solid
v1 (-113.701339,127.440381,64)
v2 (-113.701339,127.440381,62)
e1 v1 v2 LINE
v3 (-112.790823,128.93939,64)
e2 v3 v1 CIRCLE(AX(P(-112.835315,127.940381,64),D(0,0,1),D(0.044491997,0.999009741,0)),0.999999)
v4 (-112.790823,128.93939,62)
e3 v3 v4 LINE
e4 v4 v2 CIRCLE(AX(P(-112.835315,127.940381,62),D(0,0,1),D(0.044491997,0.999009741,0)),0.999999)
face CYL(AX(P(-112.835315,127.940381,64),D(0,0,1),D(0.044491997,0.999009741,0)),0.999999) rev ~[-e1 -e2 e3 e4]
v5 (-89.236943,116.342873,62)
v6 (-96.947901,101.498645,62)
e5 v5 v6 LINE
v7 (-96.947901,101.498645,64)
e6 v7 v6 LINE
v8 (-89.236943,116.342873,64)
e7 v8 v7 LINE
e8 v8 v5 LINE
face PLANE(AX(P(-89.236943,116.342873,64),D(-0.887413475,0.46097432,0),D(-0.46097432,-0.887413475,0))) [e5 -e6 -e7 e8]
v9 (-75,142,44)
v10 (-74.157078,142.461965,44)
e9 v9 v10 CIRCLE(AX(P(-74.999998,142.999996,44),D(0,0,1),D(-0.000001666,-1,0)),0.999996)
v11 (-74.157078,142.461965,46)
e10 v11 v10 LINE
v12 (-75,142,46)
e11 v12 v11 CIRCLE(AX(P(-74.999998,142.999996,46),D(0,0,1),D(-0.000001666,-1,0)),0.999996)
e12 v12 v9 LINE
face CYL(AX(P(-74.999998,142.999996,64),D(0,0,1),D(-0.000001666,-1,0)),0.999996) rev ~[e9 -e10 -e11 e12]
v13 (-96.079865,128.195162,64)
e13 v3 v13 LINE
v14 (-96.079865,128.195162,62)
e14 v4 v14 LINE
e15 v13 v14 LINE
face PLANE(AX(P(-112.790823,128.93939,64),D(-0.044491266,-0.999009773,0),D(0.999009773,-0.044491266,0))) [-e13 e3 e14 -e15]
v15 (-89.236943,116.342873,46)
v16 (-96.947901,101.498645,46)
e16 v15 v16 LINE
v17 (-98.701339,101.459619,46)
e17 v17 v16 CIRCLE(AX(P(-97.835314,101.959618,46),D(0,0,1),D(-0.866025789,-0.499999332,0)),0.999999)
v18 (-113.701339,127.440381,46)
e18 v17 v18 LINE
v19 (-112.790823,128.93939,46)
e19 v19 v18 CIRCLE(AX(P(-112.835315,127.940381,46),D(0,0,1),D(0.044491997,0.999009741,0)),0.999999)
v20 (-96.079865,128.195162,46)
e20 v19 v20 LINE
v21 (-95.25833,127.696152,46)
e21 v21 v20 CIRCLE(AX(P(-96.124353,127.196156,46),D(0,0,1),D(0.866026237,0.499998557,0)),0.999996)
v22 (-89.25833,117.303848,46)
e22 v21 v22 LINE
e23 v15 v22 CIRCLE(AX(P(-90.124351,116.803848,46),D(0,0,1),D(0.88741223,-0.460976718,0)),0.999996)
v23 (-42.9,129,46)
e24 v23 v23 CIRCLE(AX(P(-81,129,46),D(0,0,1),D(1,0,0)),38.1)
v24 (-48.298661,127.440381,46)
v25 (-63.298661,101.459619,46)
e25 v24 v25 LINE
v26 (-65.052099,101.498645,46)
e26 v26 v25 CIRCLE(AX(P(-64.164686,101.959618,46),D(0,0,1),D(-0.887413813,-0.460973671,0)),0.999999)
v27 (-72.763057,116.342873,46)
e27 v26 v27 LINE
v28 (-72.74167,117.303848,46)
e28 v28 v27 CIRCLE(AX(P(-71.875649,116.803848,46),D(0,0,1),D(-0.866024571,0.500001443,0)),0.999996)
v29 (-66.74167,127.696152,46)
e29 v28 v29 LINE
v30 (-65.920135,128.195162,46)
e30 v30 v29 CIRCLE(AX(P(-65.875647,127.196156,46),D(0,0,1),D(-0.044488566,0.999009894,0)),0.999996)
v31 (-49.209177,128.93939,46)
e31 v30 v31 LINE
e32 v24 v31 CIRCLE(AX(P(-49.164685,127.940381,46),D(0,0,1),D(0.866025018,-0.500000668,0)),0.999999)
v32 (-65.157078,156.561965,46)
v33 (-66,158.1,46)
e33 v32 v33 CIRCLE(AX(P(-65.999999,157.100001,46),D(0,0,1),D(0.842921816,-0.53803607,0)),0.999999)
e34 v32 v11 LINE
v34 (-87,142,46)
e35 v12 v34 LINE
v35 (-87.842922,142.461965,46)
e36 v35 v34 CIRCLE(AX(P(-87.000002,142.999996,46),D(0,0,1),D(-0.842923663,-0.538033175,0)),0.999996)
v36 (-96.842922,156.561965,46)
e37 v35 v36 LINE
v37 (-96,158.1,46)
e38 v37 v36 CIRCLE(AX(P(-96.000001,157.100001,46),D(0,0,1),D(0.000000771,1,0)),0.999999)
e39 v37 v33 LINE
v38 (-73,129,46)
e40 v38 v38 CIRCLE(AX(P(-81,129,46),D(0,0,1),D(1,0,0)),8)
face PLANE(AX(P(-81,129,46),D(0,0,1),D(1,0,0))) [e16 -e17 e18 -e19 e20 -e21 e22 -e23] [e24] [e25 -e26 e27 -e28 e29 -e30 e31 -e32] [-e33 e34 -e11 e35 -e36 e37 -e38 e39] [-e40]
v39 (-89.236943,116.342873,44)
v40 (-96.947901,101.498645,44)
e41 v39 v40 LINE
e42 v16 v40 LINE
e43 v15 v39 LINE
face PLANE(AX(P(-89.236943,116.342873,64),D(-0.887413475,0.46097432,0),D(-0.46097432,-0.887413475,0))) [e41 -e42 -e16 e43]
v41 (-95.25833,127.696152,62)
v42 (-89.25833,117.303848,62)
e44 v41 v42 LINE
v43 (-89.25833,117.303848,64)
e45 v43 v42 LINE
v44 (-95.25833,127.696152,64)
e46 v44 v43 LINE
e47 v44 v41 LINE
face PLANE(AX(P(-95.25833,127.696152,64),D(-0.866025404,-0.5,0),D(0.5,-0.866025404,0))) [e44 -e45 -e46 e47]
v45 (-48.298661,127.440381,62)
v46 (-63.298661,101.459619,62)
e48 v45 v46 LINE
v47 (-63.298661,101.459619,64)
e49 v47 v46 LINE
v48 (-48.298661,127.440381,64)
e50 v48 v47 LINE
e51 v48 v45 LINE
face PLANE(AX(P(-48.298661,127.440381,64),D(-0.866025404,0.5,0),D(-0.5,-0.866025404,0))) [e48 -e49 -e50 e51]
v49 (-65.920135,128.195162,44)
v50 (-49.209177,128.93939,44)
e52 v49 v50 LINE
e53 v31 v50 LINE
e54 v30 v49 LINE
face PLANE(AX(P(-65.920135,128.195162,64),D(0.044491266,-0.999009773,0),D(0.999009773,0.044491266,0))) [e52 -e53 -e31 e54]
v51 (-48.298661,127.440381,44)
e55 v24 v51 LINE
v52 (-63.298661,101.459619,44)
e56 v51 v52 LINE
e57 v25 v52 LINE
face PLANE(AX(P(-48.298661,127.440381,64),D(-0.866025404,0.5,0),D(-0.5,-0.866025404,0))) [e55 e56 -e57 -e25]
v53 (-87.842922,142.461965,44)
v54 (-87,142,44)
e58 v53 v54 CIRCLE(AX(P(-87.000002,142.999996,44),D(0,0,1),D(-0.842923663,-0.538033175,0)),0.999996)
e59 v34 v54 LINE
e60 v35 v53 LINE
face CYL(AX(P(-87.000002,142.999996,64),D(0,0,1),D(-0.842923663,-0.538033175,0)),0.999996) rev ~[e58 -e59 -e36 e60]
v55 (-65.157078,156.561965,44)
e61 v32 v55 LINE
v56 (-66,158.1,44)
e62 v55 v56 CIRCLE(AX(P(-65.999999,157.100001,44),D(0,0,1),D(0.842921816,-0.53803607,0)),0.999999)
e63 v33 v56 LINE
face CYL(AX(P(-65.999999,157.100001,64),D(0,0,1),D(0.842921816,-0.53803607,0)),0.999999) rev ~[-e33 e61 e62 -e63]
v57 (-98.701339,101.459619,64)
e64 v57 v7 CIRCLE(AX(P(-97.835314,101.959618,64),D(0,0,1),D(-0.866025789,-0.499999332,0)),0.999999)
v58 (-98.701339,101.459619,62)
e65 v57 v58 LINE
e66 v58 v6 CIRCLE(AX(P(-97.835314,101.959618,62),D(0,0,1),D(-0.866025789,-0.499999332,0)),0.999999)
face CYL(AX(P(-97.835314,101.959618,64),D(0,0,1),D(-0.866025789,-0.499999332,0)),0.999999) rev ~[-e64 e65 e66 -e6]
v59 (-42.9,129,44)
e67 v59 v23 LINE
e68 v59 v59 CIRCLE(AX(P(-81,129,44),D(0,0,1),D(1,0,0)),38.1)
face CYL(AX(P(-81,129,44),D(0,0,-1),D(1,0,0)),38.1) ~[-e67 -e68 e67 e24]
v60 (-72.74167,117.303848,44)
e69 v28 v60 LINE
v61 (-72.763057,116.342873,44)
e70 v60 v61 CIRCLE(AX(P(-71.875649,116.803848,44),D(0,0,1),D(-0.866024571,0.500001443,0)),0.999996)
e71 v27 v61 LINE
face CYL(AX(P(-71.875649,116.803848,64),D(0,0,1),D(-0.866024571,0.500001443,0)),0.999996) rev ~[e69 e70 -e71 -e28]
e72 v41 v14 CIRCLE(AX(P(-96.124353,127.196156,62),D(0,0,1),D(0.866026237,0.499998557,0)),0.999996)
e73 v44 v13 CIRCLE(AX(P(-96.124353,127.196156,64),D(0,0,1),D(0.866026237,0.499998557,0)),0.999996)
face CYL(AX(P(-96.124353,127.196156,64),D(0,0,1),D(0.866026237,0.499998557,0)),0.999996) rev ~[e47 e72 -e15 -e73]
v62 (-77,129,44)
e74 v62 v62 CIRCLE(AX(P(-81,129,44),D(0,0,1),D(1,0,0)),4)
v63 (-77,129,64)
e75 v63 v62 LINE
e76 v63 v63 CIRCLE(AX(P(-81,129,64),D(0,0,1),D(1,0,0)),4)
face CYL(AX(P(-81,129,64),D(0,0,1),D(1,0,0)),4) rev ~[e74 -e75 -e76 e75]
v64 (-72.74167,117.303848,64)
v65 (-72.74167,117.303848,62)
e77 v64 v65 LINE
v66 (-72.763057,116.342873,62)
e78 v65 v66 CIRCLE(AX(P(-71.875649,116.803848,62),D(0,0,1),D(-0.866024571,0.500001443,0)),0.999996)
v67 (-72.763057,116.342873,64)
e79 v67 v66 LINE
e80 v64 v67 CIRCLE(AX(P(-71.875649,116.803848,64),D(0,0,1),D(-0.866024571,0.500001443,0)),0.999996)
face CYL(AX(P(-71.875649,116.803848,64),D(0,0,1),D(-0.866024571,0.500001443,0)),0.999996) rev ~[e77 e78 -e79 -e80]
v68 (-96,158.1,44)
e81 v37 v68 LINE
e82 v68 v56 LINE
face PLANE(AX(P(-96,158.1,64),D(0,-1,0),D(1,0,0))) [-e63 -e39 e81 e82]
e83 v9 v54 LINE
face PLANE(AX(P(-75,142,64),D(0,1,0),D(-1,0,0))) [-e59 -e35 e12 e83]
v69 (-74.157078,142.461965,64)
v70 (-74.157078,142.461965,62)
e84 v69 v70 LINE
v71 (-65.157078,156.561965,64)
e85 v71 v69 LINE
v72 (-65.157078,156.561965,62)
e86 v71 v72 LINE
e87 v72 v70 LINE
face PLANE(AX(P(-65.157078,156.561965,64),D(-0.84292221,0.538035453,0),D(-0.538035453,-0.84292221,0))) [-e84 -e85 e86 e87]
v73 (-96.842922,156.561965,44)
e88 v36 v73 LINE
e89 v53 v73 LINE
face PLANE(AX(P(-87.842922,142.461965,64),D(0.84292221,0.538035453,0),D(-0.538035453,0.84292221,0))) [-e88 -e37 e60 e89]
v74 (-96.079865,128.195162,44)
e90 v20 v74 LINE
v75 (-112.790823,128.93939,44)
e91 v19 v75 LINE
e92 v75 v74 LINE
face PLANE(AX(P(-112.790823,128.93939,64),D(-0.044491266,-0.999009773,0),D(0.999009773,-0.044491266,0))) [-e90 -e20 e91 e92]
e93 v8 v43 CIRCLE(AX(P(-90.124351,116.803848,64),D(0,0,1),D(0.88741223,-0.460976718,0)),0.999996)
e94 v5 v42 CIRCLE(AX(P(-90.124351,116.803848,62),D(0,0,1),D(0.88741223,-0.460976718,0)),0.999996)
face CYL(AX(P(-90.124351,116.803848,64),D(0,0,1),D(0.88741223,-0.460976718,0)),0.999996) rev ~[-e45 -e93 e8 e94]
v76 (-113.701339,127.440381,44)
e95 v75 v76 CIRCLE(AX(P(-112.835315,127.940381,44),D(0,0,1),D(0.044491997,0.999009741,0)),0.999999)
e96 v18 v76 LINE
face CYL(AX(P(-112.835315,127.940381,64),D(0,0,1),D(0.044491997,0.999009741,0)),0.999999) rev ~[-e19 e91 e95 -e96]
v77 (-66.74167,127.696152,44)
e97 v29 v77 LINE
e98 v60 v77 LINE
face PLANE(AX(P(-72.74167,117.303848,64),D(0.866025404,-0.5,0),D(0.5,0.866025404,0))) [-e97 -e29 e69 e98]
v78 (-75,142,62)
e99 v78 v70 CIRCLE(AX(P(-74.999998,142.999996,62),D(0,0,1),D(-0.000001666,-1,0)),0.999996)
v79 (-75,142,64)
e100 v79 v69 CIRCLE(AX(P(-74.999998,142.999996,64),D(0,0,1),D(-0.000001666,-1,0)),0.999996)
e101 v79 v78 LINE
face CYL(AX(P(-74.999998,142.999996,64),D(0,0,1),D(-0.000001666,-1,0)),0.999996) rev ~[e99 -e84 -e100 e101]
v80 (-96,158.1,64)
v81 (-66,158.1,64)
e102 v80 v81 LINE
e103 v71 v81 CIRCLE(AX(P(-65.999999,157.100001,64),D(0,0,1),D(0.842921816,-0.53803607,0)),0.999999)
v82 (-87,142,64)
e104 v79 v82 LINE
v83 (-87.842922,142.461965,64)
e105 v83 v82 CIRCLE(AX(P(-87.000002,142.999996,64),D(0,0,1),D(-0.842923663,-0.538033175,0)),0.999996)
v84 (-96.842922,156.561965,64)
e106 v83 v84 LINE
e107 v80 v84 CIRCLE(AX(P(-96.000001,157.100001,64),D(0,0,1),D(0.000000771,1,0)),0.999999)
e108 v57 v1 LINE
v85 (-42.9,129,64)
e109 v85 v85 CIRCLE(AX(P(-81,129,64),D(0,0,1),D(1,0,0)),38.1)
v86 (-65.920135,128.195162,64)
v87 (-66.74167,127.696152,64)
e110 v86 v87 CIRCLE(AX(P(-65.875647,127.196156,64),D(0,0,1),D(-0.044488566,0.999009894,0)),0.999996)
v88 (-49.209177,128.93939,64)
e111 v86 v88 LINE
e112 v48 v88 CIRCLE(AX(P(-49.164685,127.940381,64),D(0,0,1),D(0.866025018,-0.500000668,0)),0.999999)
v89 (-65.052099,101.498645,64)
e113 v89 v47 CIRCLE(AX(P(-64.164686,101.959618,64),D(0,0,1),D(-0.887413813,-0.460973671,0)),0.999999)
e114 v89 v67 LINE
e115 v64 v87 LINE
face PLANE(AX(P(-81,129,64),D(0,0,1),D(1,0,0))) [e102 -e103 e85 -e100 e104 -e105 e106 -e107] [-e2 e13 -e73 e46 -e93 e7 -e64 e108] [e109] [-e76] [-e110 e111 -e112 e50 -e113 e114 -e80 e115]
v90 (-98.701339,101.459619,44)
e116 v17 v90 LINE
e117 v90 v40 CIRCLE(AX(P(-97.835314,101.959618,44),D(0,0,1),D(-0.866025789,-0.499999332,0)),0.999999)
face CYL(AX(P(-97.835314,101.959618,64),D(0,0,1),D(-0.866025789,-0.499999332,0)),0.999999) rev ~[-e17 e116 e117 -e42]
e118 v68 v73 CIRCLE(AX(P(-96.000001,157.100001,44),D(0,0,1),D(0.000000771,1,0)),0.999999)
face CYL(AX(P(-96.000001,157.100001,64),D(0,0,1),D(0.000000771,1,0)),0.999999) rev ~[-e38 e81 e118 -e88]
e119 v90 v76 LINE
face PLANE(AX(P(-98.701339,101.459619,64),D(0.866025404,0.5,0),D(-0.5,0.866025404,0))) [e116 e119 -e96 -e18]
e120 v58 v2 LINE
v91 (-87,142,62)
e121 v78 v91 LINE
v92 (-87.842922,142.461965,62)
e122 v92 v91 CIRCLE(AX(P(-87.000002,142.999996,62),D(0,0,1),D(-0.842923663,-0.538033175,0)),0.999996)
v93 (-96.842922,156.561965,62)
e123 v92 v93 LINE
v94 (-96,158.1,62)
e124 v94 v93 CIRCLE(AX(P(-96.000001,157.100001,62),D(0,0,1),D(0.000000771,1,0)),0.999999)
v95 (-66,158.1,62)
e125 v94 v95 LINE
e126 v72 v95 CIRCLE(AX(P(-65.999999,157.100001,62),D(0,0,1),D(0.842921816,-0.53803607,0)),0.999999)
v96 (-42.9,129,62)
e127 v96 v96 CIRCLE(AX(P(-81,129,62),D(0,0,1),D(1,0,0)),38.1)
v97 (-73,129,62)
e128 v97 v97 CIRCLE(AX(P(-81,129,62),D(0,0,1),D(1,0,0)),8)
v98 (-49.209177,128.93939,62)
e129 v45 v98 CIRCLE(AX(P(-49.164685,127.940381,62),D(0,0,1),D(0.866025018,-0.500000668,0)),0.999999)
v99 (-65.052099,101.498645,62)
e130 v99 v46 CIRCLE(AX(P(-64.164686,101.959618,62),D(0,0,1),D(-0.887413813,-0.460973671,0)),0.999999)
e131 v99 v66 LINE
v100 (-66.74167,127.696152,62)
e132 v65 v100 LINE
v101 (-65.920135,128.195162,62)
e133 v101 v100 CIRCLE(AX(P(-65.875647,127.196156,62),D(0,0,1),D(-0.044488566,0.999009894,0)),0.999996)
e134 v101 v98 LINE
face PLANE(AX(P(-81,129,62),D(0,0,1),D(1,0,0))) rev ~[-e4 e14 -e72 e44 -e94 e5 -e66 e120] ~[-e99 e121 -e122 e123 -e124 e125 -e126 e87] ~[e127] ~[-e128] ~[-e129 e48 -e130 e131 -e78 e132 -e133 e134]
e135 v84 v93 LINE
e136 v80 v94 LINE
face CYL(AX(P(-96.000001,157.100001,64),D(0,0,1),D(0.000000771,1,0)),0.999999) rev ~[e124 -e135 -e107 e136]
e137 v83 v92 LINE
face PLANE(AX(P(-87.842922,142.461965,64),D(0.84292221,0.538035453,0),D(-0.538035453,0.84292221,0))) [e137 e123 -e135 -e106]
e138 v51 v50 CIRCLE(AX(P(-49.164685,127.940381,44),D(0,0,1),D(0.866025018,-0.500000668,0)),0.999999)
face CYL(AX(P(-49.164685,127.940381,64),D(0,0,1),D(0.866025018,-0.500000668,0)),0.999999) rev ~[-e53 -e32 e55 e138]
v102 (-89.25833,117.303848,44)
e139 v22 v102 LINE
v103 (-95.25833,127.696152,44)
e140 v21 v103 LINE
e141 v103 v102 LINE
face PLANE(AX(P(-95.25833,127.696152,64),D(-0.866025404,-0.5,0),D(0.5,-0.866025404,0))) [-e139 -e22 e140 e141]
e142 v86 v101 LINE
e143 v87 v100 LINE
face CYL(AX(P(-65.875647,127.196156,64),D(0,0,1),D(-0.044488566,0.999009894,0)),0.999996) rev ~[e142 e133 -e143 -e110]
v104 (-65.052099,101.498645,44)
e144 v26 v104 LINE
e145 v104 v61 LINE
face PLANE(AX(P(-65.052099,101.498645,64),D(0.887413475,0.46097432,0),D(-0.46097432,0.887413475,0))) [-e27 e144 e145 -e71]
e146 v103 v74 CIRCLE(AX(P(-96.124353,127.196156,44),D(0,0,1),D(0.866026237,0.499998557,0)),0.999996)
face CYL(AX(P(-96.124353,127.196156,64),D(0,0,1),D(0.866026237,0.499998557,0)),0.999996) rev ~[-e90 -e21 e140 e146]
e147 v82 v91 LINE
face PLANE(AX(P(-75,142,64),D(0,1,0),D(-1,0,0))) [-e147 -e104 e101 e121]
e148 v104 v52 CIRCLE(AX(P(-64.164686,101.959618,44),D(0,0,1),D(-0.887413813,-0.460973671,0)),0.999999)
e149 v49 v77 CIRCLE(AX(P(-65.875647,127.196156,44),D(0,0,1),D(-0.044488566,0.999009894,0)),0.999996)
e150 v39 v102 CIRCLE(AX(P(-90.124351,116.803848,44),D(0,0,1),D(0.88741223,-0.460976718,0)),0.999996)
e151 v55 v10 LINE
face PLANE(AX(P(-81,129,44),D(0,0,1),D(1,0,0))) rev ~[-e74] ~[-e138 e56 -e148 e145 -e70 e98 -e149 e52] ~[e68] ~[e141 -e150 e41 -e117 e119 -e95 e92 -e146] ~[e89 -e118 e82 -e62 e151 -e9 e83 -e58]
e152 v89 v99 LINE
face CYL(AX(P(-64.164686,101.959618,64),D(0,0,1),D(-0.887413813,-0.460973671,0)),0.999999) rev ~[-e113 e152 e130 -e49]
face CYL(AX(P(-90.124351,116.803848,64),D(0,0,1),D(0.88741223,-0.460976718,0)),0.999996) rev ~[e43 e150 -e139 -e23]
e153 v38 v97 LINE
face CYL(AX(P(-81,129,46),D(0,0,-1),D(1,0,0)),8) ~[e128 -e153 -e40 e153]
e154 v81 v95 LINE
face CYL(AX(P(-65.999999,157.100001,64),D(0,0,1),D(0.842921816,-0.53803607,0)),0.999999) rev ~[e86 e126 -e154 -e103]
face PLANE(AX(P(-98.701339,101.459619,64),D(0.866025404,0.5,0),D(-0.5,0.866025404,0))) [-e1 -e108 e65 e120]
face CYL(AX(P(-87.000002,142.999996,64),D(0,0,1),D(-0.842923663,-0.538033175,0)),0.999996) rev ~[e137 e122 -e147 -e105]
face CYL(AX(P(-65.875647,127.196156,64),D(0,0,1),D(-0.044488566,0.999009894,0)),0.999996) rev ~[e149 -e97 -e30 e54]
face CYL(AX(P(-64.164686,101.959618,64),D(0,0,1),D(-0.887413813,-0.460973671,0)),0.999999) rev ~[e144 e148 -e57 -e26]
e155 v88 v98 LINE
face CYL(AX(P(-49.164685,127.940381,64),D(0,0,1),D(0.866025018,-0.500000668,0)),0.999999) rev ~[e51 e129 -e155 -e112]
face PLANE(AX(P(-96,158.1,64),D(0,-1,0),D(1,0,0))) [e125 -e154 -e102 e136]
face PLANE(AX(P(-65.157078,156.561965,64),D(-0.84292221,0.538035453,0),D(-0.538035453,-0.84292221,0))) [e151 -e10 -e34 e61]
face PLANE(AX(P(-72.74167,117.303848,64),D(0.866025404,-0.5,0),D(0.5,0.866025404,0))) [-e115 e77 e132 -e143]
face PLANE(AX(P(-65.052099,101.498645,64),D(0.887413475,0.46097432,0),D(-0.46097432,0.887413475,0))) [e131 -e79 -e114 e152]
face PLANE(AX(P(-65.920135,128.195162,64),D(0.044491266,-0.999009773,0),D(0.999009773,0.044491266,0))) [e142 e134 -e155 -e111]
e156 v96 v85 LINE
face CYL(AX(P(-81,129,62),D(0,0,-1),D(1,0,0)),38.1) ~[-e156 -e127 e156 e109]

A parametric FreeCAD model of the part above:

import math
import FreeCAD as App
import Part
import Sketcher
from FreeCAD import Vector
Q = App.Units.Quantity

doc = App.newDocument("Part")
body = doc.addObject("PartDesign::Body", "Body")

# Sketch on XY plane
sketch1 = body.newObject("Sketcher::SketchObject", "Sketch")
sketch1.AttachmentSupport = (doc.getObject("XY_Plane"), [""])
sketch1.MapMode = "FlatFace"
sketch1.addGeometry(Part.Circle(Vector(0, 0, 0), Vector(0, 0, 1), 38), False)
sketch1.addConstraint([
    Sketcher.Constraint("Coincident", 0, 3, -1, 1),
    Sketcher.Constraint("Diameter", 0, Q("76.2 mm")),
])
pad1 = body.newObject("PartDesign::Pad", "Pad")
pad1.Profile = sketch1
pad1.Length = 2

# Sketch on XY plane
sketch2 = body.newObject("Sketcher::SketchObject", "Sketch001")
sketch2.AttachmentSupport = (doc.getObject("XY_Plane"), [""])
sketch2.MapMode = "FlatFace"
sketch2.AttachmentOffset = App.Placement(Vector(0, 0, 2), App.Rotation())
sketch2.addGeometry(Part.Circle(Vector(0, 0, 0), Vector(0, 0, 1), 8), False)
sketch2.addConstraint([
    Sketcher.Constraint("Coincident", 0, 3, -1, 1),
    Sketcher.Constraint("Diameter", 0, Q("16 mm")),
])
pad2 = body.newObject("PartDesign::Pad", "Pad001")
pad2.Profile = sketch2
pad2.Length = 16

# Sketch on XY plane
sketch3 = body.newObject("Sketcher::SketchObject", "Sketch002")
sketch3.AttachmentSupport = (doc.getObject("XY_Plane"), [""])
sketch3.MapMode = "FlatFace"
sketch3.AttachmentOffset = App.Placement(Vector(0, 0, 18), App.Rotation())
sketch3.addGeometry(Part.Circle(Vector(0, 0, 0), Vector(0, 0, 1), 38), False)
sketch3.addConstraint([
    Sketcher.Constraint("Coincident", 0, 3, -1, 1),
    Sketcher.Constraint("Diameter", 0, Q("76.2 mm")),
])
pad3 = body.newObject("PartDesign::Pad", "Pad002")
pad3.Profile = sketch3
pad3.Length = 2

# Sketch on XY plane
sketch4 = body.newObject("Sketcher::SketchObject", "Sketch003")
sketch4.AttachmentSupport = (doc.getObject("XY_Plane"), [""])
sketch4.MapMode = "FlatFace"
sketch4.AttachmentOffset = App.Placement(Vector(0, 0, 20), App.Rotation())
sketch4.addGeometry([
    Part.LineSegment(Vector(15, 29.1, 0), Vector(-15, 29.1, 0)),  # 0
    Part.ArcOfCircle(Part.Circle(Vector(-15, 28.1, 0), Vector(0, 0, 1), 1), math.radians(90), math.radians(213)),  # 1
    Part.LineSegment(Vector(-15.8, 27.6, 0), Vector(-6.8, 13.5, 0)),  # 2
    Part.ArcOfCircle(Part.Circle(Vector(-6, 14, 0), Vector(0, 0, 1), 1), math.radians(-147), math.radians(-90)),  # 3
    Part.LineSegment(Vector(-6, 13, 0), Vector(6, 13, 0)),  # 4
    Part.ArcOfCircle(Part.Circle(Vector(6, 14, 0), Vector(0, 0, 1), 1), math.radians(-90), math.radians(-33)),  # 5
    Part.LineSegment(Vector(6.8, 13.5, 0), Vector(15.8, 27.6, 0)),  # 6
    Part.ArcOfCircle(Part.Circle(Vector(15, 28.1, 0), Vector(0, 0, 1), 1), math.radians(-33), math.radians(90)),  # 7
], False)
sketch4.addConstraint([
    Sketcher.Constraint("Tangent", 0, 2, 1, 1),
    Sketcher.Constraint("Tangent", 1, 2, 2, 1),
    Sketcher.Constraint("Coincident", 2, 2, 3, 1),
    Sketcher.Constraint("Tangent", 3, 2, 4, 1),
    Sketcher.Constraint("Tangent", 4, 2, 5, 1),
    Sketcher.Constraint("Coincident", 5, 2, 6, 1),
    Sketcher.Constraint("Tangent", 6, 2, 7, 1),
    Sketcher.Constraint("Tangent", 7, 2, 0, 1),
    Sketcher.Constraint("Horizontal", 0),
    Sketcher.Constraint("Horizontal", 4),
    Sketcher.Constraint("Equal", 3, 5),
    Sketcher.Constraint("Equal", 1, 7),
    Sketcher.Constraint("Symmetric", 2, 2, 5, 2, -2),
    Sketcher.Constraint("Horizontal", 1, 2, 6, 2),
    Sketcher.Constraint("Radius", 1, Q("0.999999 mm")),
    Sketcher.Constraint("DistanceX", 0, 2, 0, 1, Q("30 mm")),
    Sketcher.Constraint("DistanceX", 4, 1, 4, 2, Q("12 mm")),
    Sketcher.Constraint("DistanceY", -1, 1, 3, 2, Q("13 mm")),
    Sketcher.Constraint("DistanceX", 1, 2, 2, 2, Q("9 mm")),
    Sketcher.Constraint("DistanceY", -1, 1, 1, 3, Q("28.100001 mm")),
    Sketcher.Constraint("Angle", 2, Q("-57.449997 deg")),
])
pocket1 = body.newObject("PartDesign::Pocket", "Pocket")
pocket1.Profile = sketch4
pocket1.Type = "ThroughAll"
doc.recompute()

polarpattern = body.newObject("PartDesign::PolarPattern", "PolarPattern")
polarpattern.Originals = [pocket1]
polarpattern.Axis = (doc.getObject("Z_Axis"), [""])
polarpattern.Angle = 360
polarpattern.Occurrences = 3
body.Tip = polarpattern

# Sketch on XY plane
sketch5 = body.newObject("Sketcher::SketchObject", "Sketch004")
sketch5.AttachmentSupport = (doc.getObject("XY_Plane"), [""])
sketch5.MapMode = "FlatFace"
sketch5.AttachmentOffset = App.Placement(Vector(0, 0, 20), App.Rotation())
sketch5.addGeometry(Part.Circle(Vector(0, 0, 0), Vector(0, 0, 1), 4), False)
sketch5.addConstraint([
    Sketcher.Constraint("Coincident", 0, 3, -1, 1),
    Sketcher.Constraint("Diameter", 0, Q("8 mm")),
])
pocket2 = body.newObject("PartDesign::Pocket", "Pocket001")
pocket2.Profile = sketch5
pocket2.Type = "ThroughAll"
body2 = doc.addObject("PartDesign::Body", "Body001")
doc.recompute()

body.Placement = App.Placement(Vector(-81, 129, 44), App.Rotation(Vector(0, 0, 1), 0))
boolean = body2.newObject("PartDesign::Boolean", "Boolean")
boolean.Type = "Fuse"
boolean.addObjects([body])

doc.recompute()
